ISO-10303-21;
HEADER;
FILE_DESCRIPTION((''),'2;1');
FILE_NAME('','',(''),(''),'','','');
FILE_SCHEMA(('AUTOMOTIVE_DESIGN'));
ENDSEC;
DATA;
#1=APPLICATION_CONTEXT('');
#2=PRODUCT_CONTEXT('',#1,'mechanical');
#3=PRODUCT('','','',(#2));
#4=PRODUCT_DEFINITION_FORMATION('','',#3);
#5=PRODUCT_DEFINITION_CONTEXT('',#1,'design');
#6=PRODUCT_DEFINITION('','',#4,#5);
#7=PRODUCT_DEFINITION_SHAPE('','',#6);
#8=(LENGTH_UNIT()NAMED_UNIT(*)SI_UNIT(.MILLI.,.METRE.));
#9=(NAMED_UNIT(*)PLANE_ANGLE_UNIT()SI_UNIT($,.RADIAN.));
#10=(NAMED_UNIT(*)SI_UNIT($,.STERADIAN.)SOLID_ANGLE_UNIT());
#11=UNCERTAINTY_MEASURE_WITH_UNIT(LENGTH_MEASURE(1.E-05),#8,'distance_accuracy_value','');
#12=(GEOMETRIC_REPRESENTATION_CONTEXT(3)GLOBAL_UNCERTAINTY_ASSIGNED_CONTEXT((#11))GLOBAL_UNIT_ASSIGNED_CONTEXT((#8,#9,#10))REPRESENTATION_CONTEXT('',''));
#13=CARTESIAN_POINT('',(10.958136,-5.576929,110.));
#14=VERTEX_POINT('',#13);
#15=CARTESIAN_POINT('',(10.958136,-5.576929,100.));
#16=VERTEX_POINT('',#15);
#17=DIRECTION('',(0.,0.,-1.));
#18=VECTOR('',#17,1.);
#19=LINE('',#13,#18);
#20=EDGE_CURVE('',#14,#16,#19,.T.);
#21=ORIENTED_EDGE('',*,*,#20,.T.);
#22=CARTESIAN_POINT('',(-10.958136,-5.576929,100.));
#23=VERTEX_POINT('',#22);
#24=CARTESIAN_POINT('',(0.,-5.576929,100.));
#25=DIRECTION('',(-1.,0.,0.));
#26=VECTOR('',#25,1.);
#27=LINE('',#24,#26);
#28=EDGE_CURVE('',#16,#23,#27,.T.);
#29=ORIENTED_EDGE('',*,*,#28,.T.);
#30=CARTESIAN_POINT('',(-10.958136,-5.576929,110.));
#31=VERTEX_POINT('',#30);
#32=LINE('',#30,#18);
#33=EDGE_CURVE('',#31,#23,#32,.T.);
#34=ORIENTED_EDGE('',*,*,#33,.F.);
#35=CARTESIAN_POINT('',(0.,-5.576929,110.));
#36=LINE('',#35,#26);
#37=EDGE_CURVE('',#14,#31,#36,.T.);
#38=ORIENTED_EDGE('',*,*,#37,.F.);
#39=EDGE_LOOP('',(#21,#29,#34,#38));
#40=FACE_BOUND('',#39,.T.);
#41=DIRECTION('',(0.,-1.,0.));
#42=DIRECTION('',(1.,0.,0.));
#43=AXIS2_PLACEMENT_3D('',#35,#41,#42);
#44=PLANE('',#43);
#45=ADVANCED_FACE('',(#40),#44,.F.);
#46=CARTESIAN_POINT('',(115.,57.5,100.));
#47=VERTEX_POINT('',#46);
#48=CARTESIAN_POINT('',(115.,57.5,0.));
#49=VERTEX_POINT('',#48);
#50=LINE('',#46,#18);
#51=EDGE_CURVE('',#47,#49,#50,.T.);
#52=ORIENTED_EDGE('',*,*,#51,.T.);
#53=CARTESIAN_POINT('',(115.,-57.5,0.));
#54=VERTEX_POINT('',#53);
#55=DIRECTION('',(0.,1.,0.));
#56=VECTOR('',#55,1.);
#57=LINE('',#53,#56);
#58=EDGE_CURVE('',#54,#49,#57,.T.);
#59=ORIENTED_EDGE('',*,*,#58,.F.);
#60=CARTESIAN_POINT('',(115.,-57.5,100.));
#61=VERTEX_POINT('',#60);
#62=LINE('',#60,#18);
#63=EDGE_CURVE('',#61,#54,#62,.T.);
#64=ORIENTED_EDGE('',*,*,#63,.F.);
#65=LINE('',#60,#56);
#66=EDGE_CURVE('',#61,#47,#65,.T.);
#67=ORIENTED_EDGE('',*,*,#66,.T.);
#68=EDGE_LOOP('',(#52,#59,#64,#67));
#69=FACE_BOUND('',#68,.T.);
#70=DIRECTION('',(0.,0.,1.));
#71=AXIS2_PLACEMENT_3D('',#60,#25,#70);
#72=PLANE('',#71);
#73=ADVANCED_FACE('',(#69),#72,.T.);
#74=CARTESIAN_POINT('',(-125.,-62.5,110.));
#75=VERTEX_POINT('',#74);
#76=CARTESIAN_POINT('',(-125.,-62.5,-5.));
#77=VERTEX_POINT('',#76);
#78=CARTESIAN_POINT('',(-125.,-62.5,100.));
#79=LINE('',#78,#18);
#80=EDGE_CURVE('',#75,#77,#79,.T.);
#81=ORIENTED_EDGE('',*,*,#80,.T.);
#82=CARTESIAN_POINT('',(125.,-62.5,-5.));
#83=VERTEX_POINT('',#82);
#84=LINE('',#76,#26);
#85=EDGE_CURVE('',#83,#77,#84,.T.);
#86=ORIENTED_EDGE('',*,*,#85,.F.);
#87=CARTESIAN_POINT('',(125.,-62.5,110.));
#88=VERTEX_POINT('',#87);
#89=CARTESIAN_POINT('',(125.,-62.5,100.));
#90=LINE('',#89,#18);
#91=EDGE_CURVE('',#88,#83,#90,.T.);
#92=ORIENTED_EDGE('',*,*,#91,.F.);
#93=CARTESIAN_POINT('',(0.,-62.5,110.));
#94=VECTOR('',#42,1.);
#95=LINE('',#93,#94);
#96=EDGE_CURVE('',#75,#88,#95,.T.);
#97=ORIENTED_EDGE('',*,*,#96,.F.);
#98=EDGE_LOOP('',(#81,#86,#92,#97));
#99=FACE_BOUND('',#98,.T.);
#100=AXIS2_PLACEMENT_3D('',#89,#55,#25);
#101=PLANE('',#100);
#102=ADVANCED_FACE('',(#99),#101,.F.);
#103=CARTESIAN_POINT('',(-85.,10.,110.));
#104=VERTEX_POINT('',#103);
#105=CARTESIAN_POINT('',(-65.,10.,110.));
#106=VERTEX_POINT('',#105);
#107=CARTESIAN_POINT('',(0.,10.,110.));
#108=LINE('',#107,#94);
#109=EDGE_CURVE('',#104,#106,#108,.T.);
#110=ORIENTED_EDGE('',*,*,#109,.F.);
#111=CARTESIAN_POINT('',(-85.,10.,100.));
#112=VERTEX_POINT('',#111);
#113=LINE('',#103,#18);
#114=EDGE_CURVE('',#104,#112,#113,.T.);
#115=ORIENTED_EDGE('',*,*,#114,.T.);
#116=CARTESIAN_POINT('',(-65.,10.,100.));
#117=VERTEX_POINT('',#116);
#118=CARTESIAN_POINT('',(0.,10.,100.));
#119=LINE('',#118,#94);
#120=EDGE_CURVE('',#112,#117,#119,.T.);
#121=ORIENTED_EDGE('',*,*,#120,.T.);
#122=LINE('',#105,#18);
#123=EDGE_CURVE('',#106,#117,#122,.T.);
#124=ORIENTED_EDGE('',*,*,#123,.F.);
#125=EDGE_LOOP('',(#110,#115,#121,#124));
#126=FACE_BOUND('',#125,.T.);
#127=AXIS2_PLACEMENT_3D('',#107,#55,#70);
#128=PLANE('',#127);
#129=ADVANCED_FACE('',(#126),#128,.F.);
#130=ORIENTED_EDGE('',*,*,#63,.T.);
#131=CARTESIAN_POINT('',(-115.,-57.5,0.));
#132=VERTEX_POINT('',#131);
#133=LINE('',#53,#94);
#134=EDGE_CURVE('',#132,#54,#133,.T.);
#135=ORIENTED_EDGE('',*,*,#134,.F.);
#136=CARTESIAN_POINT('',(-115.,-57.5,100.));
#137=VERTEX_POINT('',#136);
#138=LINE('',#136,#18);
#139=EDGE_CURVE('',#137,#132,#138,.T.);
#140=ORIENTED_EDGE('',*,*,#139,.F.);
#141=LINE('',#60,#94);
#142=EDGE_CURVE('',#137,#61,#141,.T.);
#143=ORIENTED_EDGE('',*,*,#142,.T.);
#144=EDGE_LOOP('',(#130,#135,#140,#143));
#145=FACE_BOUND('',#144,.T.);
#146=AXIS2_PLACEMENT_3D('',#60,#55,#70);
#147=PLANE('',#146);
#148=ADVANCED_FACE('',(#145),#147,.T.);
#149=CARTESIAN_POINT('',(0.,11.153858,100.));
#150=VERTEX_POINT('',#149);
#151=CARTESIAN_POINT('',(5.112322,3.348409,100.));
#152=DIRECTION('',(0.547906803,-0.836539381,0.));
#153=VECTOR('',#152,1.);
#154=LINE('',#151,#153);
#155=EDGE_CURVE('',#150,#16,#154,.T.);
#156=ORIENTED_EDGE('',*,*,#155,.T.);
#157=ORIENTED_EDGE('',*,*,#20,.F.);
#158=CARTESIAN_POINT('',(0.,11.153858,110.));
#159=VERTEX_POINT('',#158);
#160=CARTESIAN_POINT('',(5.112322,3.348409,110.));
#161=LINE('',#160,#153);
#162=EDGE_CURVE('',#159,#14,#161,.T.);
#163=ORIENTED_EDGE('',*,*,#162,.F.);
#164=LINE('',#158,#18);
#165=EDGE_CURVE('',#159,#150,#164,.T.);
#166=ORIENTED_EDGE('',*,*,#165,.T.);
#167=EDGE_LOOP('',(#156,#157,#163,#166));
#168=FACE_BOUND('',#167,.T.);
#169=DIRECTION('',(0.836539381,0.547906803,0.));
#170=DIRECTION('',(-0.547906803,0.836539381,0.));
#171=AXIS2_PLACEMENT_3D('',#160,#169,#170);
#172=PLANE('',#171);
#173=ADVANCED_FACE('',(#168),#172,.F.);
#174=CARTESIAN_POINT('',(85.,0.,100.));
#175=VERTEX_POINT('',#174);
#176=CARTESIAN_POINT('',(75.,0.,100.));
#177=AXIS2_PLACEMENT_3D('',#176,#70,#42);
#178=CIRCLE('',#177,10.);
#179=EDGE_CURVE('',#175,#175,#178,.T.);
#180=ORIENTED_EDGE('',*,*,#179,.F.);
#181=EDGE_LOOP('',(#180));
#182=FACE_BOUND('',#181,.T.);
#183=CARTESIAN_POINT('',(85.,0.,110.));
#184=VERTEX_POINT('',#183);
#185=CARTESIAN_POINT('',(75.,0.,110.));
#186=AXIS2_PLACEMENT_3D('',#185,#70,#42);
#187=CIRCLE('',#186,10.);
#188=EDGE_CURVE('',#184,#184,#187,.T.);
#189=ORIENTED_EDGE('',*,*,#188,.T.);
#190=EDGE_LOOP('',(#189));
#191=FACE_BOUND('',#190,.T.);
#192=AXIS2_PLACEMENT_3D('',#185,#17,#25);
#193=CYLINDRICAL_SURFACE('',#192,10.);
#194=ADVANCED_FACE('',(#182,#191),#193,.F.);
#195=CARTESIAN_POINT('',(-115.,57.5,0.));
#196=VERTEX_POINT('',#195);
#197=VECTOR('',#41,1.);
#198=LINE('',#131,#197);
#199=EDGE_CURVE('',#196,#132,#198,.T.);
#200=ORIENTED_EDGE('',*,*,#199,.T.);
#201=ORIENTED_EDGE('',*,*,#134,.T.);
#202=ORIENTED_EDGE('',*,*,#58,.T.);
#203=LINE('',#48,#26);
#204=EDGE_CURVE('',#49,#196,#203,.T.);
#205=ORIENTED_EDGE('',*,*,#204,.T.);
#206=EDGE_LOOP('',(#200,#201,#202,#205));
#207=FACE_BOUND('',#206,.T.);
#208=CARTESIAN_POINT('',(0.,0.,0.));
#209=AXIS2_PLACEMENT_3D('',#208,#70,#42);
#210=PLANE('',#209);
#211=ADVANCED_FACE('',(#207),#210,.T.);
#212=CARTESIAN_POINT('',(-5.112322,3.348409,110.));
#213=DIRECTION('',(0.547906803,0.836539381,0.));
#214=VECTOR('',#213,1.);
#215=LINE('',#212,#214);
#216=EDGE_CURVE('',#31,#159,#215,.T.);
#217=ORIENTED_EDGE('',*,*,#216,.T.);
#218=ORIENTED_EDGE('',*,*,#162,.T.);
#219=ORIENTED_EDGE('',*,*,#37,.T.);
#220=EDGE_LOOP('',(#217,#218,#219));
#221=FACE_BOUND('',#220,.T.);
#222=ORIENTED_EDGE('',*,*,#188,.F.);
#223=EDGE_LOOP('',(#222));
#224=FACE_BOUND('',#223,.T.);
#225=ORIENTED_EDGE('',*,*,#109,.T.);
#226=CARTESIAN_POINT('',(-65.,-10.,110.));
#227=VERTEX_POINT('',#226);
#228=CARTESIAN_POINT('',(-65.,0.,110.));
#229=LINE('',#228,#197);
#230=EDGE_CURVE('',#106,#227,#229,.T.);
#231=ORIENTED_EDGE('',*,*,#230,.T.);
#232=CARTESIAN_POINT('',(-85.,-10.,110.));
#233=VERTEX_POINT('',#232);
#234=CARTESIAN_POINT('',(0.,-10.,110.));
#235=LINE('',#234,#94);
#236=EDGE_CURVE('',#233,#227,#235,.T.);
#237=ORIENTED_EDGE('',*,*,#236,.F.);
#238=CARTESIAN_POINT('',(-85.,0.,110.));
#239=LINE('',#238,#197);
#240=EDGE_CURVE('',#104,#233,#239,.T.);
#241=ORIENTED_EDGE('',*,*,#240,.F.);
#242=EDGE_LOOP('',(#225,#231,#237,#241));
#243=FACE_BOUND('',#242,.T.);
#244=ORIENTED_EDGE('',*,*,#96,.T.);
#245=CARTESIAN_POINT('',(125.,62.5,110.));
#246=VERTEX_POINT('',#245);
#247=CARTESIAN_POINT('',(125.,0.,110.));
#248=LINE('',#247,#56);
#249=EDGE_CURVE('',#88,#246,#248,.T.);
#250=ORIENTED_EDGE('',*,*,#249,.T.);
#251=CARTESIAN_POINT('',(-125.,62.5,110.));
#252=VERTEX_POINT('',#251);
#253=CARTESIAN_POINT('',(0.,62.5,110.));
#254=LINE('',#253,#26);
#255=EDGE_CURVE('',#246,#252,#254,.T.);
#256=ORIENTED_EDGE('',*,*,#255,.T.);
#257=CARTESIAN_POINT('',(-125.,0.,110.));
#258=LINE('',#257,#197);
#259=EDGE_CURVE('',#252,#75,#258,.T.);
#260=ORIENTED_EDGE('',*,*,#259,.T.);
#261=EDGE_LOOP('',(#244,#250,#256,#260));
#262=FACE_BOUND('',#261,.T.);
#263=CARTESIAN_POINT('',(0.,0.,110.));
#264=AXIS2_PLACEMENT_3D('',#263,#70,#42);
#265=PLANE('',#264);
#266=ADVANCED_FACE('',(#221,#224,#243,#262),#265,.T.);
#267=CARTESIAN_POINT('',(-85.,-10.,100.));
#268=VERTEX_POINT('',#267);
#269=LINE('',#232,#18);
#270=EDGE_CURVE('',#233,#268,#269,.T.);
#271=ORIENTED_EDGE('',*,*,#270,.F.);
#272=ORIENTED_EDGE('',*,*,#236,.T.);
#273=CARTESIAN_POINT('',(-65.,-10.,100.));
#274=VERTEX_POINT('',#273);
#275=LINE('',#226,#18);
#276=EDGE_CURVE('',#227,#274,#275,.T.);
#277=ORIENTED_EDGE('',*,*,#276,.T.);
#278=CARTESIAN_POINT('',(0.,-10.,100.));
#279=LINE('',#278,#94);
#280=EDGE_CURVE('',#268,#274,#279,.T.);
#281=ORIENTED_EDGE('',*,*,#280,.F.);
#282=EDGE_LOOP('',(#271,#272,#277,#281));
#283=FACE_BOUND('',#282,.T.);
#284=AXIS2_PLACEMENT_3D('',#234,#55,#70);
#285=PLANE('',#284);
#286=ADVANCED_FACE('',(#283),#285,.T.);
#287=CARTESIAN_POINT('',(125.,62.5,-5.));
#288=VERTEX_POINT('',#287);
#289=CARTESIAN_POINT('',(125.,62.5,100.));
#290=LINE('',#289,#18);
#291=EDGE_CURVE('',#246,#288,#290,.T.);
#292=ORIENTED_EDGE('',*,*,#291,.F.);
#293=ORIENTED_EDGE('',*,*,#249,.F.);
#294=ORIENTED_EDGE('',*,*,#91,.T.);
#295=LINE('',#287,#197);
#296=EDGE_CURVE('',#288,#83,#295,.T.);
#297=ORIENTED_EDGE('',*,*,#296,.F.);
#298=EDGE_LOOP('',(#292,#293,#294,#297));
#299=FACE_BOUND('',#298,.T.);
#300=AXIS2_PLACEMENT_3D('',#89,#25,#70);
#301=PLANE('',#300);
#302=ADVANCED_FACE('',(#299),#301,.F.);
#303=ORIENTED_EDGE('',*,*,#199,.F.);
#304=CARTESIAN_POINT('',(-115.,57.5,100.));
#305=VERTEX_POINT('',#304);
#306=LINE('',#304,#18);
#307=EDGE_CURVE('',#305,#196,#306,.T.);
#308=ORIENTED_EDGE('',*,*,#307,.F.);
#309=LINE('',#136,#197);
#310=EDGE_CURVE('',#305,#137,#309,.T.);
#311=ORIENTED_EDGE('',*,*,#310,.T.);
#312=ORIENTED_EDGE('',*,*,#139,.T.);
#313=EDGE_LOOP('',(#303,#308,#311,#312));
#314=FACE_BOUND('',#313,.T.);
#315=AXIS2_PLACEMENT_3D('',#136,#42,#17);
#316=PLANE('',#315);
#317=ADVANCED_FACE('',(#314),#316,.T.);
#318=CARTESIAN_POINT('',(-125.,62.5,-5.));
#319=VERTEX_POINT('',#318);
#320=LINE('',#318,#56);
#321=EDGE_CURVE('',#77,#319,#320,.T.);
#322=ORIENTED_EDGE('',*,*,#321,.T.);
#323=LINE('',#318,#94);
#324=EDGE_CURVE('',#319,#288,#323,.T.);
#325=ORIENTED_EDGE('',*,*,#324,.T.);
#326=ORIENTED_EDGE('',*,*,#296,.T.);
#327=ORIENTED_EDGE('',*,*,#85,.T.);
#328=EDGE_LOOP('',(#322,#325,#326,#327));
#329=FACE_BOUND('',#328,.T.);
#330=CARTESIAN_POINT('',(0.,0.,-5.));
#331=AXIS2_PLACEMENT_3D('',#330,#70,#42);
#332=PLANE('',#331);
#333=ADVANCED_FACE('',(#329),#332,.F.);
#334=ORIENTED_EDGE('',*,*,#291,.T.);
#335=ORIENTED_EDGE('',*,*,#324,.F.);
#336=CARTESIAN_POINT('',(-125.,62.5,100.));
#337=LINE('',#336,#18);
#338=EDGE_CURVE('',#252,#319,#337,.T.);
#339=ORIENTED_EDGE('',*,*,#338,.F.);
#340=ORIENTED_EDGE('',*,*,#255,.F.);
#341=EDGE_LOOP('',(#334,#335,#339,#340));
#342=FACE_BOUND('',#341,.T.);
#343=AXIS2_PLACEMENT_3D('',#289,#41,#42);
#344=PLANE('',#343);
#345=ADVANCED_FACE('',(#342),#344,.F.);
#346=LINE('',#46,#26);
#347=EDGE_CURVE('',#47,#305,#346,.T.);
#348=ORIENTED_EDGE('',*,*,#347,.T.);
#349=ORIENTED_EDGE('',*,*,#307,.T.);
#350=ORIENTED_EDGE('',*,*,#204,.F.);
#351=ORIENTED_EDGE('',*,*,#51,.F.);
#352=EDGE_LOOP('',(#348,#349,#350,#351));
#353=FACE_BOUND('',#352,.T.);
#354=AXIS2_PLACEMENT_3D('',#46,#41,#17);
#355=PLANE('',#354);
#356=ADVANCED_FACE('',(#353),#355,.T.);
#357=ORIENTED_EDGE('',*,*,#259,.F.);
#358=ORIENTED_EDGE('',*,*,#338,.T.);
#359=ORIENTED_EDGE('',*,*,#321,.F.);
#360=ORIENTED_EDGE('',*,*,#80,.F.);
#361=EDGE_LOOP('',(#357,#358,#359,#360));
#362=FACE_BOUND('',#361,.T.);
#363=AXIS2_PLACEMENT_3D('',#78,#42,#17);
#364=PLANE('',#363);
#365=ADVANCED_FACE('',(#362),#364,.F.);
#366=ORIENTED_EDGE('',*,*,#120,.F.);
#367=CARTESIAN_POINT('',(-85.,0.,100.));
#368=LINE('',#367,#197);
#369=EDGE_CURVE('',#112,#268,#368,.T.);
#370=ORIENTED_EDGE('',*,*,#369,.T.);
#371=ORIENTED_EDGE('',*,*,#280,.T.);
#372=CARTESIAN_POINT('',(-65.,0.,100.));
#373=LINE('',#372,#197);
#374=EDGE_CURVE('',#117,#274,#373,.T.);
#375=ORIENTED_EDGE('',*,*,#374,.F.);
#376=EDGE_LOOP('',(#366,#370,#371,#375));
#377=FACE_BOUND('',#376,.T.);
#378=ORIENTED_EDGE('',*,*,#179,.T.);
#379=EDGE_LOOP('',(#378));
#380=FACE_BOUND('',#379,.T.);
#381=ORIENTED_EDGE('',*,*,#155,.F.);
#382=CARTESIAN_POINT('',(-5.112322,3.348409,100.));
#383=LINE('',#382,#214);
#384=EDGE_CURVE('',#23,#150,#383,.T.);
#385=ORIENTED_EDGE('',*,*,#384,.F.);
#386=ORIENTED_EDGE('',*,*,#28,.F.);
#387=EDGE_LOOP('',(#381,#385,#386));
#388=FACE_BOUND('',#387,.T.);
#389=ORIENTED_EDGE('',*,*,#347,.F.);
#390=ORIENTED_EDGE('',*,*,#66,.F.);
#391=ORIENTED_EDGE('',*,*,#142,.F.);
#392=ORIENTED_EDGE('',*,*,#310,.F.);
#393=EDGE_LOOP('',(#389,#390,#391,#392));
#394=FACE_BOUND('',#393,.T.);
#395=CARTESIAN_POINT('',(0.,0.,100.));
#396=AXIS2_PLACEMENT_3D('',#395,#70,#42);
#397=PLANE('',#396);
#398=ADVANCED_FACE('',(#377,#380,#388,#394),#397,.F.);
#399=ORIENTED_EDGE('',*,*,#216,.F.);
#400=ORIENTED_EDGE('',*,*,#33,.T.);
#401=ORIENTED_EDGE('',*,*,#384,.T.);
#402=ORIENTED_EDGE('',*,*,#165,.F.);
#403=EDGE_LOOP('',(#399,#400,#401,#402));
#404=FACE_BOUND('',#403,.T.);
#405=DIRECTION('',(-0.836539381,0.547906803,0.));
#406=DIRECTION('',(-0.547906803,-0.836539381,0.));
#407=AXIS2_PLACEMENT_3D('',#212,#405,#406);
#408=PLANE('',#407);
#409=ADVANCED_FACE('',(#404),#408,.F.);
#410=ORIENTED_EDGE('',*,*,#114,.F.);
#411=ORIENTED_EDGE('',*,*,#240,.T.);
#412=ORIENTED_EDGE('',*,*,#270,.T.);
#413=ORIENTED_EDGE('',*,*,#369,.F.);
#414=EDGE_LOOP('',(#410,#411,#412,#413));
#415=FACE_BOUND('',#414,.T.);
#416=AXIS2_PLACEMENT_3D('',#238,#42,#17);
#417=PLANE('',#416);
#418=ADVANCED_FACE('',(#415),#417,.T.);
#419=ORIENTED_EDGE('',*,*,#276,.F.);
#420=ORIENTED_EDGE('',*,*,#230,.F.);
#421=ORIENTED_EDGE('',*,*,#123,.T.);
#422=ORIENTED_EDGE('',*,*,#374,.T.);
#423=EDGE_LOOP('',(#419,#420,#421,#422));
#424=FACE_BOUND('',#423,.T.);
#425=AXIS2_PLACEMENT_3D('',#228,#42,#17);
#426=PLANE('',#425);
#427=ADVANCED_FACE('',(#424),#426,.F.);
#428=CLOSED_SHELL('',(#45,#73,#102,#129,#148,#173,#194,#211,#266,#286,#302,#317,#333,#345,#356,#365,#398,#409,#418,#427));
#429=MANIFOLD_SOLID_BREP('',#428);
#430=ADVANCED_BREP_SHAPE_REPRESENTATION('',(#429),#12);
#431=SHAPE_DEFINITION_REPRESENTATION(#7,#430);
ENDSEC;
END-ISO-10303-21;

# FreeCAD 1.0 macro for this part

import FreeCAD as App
import Part
import Sketcher

V = App.Vector


def add_polygon(sketch, points):
    """Adds a closed chain of lines whose ends are joined by coincident constraints."""
    first, n = sketch.GeometryCount, len(points)
    for a, b in zip(points, points[1:] + points[:1]):
        sketch.addGeometry(Part.LineSegment(App.Vector(*a, 0), App.Vector(*b, 0)), False)
    for i in range(n):
        sketch.addConstraint(Sketcher.Constraint("Coincident", first + i, 2, first + (i + 1) % n, 1))

doc = App.newDocument("Part")
body = doc.addObject("PartDesign::Body", "Body")

# Sketch on XY plane
sketch1 = doc.addObject("Sketcher::SketchObject", "Sketch")
body.addObject(sketch1)
sketch1.AttachmentSupport = (doc.XY_Plane, [""])
sketch1.MapMode = "FlatFace"
add_polygon(sketch1, [(-125, 62.5), (-125, -62.5), (125, -62.5), (125, 62.5)])  # lines 0-3
add_polygon(sketch1, [(115, -57.5), (-115, -57.5), (-115, 57.5), (115, 57.5)])  # lines 4-7
sketch1.addConstraint(Sketcher.Constraint("Vertical", 0))
sketch1.addConstraint(Sketcher.Constraint("Horizontal", 1))
sketch1.addConstraint(Sketcher.Constraint("Vertical", 2))
sketch1.addConstraint(Sketcher.Constraint("Horizontal", 3))
sketch1.addConstraint(Sketcher.Constraint("Horizontal", 4))
sketch1.addConstraint(Sketcher.Constraint("Vertical", 5))
sketch1.addConstraint(Sketcher.Constraint("Horizontal", 6))
sketch1.addConstraint(Sketcher.Constraint("Vertical", 7))
sketch1.addConstraint(Sketcher.Constraint("Symmetric", 0, 2, 2, 2, -1, 1))
sketch1.addConstraint(Sketcher.Constraint("Symmetric", 4, 2, 6, 2, -1, 1))
sketch1.addConstraint(Sketcher.Constraint("DistanceX", 1, 1, 1, 2, 250.0))
sketch1.addConstraint(Sketcher.Constraint("DistanceX", 4, 2, 4, 1, 230.0))
sketch1.addConstraint(Sketcher.Constraint("DistanceY", 0, 2, 0, 1, 125.0))
sketch1.addConstraint(Sketcher.Constraint("DistanceY", 5, 1, 5, 2, 115.0))
pad1 = doc.addObject("PartDesign::Pad", "Pad")
body.addObject(pad1)
pad1.Profile = sketch1
pad1.Length = 100

# Sketch on XY plane
sketch2 = doc.addObject("Sketcher::SketchObject", "Sketch001")
body.addObject(sketch2)
sketch2.AttachmentSupport = (doc.XY_Plane, [""])
sketch2.MapMode = "FlatFace"
add_polygon(sketch2, [(125, 62.5), (125, -62.5), (-125, -62.5), (-125, 62.5)])  # lines 0-3
sketch2.addConstraint(Sketcher.Constraint("Vertical", 0))
sketch2.addConstraint(Sketcher.Constraint("Horizontal", 1))
sketch2.addConstraint(Sketcher.Constraint("Vertical", 2))
sketch2.addConstraint(Sketcher.Constraint("Horizontal", 3))
sketch2.addConstraint(Sketcher.Constraint("Symmetric", 0, 2, 2, 2, -1, 1))
sketch2.addConstraint(Sketcher.Constraint("DistanceX", 1, 2, 1, 1, 250.0))
sketch2.addConstraint(Sketcher.Constraint("DistanceY", 0, 2, 0, 1, 125.0))
pad2 = doc.addObject("PartDesign::Pad", "Pad001")
body.addObject(pad2)
pad2.Profile = sketch2
pad2.Length = 5
pad2.Reversed = True

# Sketch on XY plane
sketch3 = doc.addObject("Sketcher::SketchObject", "Sketch002")
body.addObject(sketch3)
sketch3.AttachmentSupport = (doc.XY_Plane, [""])
sketch3.MapMode = "FlatFace"
sketch3.AttachmentOffset = App.Placement(V(0, 0, 100), App.Rotation())
add_polygon(sketch3, [(-125, 62.5), (-125, -62.5), (125, -62.5), (125, 62.5)])  # lines 0-3
sketch3.addGeometry(Part.Circle(V(75, 0, 0), V(0, 0, 1), 10), False)  # 4
add_polygon(sketch3, [(0, 11.153858), (10.958136, -5.576929), (-10.958136, -5.576929)])  # lines 5-7
add_polygon(sketch3, [(-65, -10), (-85, -10), (-85, 10), (-65, 10)])  # lines 8-11
sketch3.addConstraint(Sketcher.Constraint("Vertical", 0))
sketch3.addConstraint(Sketcher.Constraint("Horizontal", 1))
sketch3.addConstraint(Sketcher.Constraint("Vertical", 2))
sketch3.addConstraint(Sketcher.Constraint("Horizontal", 3))
sketch3.addConstraint(Sketcher.Constraint("Horizontal", 6))
sketch3.addConstraint(Sketcher.Constraint("Horizontal", 8))
sketch3.addConstraint(Sketcher.Constraint("Vertical", 9))
sketch3.addConstraint(Sketcher.Constraint("Horizontal", 10))
sketch3.addConstraint(Sketcher.Constraint("Vertical", 11))
sketch3.addConstraint(Sketcher.Constraint("Symmetric", 0, 2, 2, 2, -1, 1))
sketch3.addConstraint(Sketcher.Constraint("PointOnObject", 4, 3, -1))
sketch3.addConstraint(Sketcher.Constraint("PointOnObject", 7, 2, -2))
sketch3.addConstraint(Sketcher.Constraint("Equal", 10, 9))
sketch3.addConstraint(Sketcher.Constraint("Equal", 5, 7))
sketch3.addConstraint(Sketcher.Constraint("Diameter", 4, 20.0))
sketch3.addConstraint(Sketcher.Constraint("DistanceX", 1, 1, 1, 2, 250.0))
sketch3.addConstraint(Sketcher.Constraint("DistanceX", 8, 2, 8, 1, 20.0))
sketch3.addConstraint(Sketcher.Constraint("DistanceY", 0, 2, 0, 1, 125.0))
sketch3.addConstraint(Sketcher.Constraint("Distance", 5, 20.0))
sketch3.addConstraint(Sketcher.Constraint("DistanceX", -1, 1, 4, 3, 75.0))
sketch3.addConstraint(Sketcher.Constraint("DistanceX", 8, 2, -1, 1, 85.0))
sketch3.addConstraint(Sketcher.Constraint("DistanceY", 8, 2, -1, 1, 10.0))
sketch3.addConstraint(Sketcher.Constraint("DistanceX", 6, 2, 6, 1, 21.916272))
sketch3.addConstraint(Sketcher.Constraint("DistanceY", 5, 2, -1, 1, 5.576929))
pad3 = doc.addObject("PartDesign::Pad", "Pad002")
body.addObject(pad3)
pad3.Profile = sketch3
pad3.Length = 10

doc.recompute()
